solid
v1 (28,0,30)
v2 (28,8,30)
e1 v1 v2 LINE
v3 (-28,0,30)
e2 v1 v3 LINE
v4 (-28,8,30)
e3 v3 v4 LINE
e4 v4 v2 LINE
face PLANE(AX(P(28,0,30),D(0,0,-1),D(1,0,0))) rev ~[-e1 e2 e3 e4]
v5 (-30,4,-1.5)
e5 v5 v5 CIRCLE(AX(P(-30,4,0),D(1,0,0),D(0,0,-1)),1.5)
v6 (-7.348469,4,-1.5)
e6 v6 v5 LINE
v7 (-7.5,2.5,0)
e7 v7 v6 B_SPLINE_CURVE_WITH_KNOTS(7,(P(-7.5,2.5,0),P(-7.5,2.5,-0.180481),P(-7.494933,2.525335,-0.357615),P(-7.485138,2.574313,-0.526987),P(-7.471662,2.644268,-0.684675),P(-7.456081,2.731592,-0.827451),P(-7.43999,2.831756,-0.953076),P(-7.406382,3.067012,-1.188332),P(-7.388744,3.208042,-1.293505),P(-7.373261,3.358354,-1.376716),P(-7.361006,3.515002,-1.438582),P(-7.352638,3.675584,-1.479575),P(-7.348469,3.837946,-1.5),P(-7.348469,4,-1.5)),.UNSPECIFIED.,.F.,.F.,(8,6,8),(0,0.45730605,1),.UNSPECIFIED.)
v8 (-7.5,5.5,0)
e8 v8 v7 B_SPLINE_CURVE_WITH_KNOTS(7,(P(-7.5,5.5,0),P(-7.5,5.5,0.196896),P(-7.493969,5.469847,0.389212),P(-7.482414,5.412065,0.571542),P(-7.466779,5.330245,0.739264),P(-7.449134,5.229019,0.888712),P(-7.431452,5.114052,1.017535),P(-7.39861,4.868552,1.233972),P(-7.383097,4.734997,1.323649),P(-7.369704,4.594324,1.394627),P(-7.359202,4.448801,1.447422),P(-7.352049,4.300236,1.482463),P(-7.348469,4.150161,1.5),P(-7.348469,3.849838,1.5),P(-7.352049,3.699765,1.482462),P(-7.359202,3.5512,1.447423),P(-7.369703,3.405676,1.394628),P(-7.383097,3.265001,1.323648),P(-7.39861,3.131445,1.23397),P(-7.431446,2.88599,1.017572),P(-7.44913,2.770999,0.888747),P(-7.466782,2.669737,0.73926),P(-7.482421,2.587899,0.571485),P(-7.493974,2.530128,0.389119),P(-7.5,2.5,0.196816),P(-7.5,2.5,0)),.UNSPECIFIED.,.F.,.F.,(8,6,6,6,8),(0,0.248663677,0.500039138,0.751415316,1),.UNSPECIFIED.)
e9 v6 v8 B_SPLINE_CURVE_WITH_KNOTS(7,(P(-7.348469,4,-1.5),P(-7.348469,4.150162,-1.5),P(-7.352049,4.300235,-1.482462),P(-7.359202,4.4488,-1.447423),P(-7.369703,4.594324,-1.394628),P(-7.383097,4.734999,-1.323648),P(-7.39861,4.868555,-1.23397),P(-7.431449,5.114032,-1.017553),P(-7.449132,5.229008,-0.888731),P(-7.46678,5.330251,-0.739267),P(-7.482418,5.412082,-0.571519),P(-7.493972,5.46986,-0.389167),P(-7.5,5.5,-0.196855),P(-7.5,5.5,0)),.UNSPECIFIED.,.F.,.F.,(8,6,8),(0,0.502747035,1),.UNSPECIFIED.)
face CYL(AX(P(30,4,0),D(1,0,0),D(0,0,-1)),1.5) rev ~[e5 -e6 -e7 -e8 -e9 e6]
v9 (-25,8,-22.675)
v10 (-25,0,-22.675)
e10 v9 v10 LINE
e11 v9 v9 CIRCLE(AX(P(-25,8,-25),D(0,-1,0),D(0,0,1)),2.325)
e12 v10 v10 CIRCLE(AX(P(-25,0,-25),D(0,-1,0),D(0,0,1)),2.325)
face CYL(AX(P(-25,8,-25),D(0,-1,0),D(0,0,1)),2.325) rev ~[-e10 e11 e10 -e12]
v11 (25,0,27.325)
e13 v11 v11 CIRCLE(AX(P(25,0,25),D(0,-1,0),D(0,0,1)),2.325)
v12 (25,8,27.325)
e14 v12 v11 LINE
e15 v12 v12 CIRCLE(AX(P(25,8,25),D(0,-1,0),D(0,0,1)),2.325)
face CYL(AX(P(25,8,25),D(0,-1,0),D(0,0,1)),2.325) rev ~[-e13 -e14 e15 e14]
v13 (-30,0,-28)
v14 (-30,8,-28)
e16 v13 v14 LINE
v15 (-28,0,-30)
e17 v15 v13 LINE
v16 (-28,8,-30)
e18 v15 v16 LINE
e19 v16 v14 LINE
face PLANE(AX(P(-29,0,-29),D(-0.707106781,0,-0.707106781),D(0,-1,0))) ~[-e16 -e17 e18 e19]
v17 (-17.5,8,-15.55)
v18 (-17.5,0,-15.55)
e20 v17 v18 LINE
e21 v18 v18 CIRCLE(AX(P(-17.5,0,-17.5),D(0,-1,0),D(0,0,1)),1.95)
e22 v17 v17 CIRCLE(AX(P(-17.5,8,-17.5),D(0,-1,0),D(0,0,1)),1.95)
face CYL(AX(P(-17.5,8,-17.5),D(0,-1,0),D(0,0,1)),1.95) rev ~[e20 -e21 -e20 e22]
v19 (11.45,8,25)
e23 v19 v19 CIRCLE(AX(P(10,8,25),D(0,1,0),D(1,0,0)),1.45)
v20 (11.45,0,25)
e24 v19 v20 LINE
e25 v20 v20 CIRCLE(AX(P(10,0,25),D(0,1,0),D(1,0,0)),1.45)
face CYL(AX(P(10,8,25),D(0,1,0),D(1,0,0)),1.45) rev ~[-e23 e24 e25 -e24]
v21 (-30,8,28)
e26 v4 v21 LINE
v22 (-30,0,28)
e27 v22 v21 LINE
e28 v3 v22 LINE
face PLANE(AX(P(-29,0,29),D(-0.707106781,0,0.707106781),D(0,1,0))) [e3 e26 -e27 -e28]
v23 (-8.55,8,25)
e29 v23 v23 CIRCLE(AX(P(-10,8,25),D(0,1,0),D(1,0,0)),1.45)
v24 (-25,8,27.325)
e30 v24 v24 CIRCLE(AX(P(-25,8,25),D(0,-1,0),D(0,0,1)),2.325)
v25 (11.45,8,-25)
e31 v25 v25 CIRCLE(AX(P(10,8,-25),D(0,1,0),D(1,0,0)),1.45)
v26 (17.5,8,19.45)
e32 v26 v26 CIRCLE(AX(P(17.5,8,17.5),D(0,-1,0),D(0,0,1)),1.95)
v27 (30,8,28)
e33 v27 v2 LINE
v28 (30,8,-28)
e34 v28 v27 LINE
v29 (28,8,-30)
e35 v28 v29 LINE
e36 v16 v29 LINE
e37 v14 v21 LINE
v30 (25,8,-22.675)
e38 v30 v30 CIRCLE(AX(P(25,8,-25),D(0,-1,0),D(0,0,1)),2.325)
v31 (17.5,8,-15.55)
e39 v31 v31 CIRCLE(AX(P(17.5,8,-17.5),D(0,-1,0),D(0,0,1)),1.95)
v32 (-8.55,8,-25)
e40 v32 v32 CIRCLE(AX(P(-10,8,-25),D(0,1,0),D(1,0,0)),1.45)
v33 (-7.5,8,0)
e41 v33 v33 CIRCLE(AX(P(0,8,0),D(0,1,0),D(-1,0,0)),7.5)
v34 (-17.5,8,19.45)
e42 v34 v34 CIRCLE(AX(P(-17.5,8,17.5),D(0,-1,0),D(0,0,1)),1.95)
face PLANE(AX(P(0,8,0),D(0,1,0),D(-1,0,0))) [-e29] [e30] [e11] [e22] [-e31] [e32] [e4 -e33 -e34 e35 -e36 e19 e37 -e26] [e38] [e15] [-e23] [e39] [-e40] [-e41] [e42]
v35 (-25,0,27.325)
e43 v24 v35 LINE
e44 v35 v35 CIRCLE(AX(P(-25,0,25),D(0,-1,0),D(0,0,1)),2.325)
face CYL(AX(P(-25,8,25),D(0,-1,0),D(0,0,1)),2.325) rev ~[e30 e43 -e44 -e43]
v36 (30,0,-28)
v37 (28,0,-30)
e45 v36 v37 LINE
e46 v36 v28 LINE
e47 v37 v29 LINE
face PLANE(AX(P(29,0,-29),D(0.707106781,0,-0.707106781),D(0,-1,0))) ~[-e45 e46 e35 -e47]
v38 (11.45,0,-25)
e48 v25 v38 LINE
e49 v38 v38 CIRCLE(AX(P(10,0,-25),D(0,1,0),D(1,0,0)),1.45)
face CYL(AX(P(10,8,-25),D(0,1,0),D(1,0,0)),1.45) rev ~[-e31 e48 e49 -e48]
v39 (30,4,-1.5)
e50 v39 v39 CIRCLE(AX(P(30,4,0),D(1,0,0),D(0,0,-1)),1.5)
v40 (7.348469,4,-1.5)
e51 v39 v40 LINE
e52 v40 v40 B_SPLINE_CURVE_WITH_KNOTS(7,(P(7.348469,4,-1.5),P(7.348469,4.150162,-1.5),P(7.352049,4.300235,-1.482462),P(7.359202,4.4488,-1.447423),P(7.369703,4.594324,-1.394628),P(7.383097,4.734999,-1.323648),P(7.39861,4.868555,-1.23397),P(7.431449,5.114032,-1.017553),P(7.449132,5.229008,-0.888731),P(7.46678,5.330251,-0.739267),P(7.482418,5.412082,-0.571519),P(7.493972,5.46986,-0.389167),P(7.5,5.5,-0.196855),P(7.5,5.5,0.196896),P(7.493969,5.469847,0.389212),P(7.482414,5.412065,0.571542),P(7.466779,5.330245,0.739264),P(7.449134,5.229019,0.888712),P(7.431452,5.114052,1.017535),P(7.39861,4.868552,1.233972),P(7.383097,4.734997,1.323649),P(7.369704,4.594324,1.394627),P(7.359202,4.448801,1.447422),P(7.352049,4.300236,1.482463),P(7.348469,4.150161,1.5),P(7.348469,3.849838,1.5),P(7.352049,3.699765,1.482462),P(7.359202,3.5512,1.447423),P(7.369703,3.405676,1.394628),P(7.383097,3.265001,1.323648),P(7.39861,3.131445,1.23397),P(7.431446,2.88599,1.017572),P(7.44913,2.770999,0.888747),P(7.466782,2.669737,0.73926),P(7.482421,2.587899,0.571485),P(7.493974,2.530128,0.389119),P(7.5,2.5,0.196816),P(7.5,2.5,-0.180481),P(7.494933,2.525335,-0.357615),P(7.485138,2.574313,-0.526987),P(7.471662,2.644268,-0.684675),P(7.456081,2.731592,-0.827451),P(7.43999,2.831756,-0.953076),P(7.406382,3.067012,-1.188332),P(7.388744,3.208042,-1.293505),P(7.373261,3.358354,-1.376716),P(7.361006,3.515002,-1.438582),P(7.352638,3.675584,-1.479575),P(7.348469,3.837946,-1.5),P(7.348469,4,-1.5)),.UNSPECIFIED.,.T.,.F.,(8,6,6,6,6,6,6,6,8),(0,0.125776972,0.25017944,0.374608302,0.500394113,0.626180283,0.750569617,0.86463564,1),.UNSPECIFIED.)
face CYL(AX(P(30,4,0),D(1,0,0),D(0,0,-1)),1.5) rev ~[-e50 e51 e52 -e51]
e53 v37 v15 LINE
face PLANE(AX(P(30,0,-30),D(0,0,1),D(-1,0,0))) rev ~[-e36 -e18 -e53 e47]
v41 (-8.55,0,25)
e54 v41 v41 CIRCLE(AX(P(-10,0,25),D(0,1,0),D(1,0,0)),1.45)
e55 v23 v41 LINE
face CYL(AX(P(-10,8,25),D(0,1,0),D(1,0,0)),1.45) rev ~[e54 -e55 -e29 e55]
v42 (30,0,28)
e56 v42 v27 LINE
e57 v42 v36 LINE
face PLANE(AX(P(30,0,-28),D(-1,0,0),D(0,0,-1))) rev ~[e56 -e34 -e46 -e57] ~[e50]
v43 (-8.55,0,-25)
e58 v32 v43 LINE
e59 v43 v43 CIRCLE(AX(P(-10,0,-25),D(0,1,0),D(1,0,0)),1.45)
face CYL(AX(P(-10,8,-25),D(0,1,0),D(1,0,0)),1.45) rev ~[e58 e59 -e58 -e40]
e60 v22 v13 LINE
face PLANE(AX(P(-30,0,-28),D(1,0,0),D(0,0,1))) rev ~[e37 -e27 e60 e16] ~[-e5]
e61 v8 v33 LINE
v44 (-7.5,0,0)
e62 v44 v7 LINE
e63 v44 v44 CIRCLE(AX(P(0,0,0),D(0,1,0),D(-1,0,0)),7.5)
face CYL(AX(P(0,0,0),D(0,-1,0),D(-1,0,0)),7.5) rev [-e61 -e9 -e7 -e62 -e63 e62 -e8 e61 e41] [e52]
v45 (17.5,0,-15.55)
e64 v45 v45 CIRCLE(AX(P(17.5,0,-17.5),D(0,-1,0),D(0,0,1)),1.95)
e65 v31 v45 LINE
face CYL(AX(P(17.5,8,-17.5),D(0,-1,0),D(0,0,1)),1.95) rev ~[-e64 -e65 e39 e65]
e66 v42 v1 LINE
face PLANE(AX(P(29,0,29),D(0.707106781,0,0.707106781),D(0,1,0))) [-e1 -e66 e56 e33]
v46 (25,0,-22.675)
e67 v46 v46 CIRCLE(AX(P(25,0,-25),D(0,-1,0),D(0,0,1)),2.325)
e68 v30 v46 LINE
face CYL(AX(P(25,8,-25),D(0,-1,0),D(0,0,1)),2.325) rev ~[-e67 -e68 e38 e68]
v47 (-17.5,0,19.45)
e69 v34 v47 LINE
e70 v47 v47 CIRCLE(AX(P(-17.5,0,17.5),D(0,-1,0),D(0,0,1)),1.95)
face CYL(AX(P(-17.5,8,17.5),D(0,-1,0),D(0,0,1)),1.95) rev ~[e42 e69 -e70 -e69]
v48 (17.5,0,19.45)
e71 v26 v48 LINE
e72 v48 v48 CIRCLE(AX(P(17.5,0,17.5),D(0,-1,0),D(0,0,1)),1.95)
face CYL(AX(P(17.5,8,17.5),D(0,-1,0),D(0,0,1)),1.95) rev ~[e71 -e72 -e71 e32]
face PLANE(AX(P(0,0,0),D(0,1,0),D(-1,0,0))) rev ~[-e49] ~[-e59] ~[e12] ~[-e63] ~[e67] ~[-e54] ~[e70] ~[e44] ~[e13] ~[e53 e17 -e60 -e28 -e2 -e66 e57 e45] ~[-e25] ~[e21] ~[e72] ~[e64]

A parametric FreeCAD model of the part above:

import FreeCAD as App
import Part
import Sketcher

V = App.Vector
Q = App.Units.Quantity


def edges_at(feature, points):
    """Names of the edges that pass closest to the given points."""
    edges = feature.Shape.Edges
    near = lambda p: min(range(len(edges)), key=lambda i: edges[i].distToShape(Part.Vertex(*p))[0])
    return sorted({f"Edge{near(p) + 1}" for p in points})

doc = App.newDocument("Part")
params = doc.addObject("Spreadsheet::Sheet", "Params")
for row, (alias, value) in enumerate([
    ("sketch1_diameter", "15 mm"),
    ("sketch1_width", "60 mm"),
    ("pad1_length", "8 mm"),
    ("sketch2_diameter", "3.9 mm"),
    ("hole_diameter", "3.9 mm"),
    ("hole_depth", "10 mm"),
    ("chamfer_size", "2 mm"),
    ("sketch3_diameter", "4.65 mm"),
    ("hole2_diameter", "4.65 mm"),
    ("sketch4_diameter", "3 mm"),
    ("sketch5_diameter", "2.9 mm"),
    ("pocket2_length", "10 mm"),
], start=1):
    params.set(f"A{row}", alias)
    params.set(f"B{row}", "=" + value)
    params.setAlias(f"B{row}", alias)

body = doc.addObject("PartDesign::Body", "Body")

# Sketch on XZ plane
sketch1 = body.newObject("Sketcher::SketchObject", "Sketch")
sketch1.AttachmentSupport = (doc.getObject("XZ_Plane"), [""])
sketch1.MapMode = "FlatFace"
sketch1.addGeometry([
    Part.LineSegment(V(30, -30, 0), V(-30, -30, 0)),  # 0
    Part.LineSegment(V(-30, -30, 0), V(-30, 30, 0)),  # 1
    Part.LineSegment(V(-30, 30, 0), V(30, 30, 0)),  # 2
    Part.LineSegment(V(30, 30, 0), V(30, -30, 0)),  # 3
    Part.Circle(V(0, 0, 0), V(0, 0, 1), 8),  # 4
], False)
sketch1.addConstraint([
    Sketcher.Constraint("Coincident", 0, 2, 1, 1),
    Sketcher.Constraint("Coincident", 1, 2, 2, 1),
    Sketcher.Constraint("Coincident", 2, 2, 3, 1),
    Sketcher.Constraint("Coincident", 3, 2, 0, 1),
    Sketcher.Constraint("Horizontal", 0),
    Sketcher.Constraint("Vertical", 1),
    Sketcher.Constraint("Horizontal", 2),
    Sketcher.Constraint("Vertical", 3),
    Sketcher.Constraint("Coincident", 4, 3, -1, 1),
    Sketcher.Constraint("Symmetric", 0, 2, 2, 2, -1, 1),
    Sketcher.Constraint("Equal", 2, 1),
    Sketcher.Constraint("Diameter", 4, Q("15 mm")),
    Sketcher.Constraint("DistanceX", 0, 2, 0, 1, Q("60 mm")),
])
sketch1.setExpression("Constraints[11]", "Params.sketch1_diameter")
sketch1.setExpression("Constraints[12]", "Params.sketch1_width")
pad1 = body.newObject("PartDesign::Pad", "Pad")
pad1.Profile = sketch1
pad1.setExpression("Length", "Params.pad1_length")
pad1.Reversed = True

# Sketch on XZ plane
sketch2 = body.newObject("Sketcher::SketchObject", "Sketch001")
sketch2.AttachmentSupport = (doc.getObject("XZ_Plane"), [""])
sketch2.MapMode = "FlatFace"
sketch2.AttachmentOffset = App.Placement(V(0, 0, -8), App.Rotation())
sketch2.addGeometry([
    Part.Circle(V(-17.5, 17.5, 0), V(0, 0, 1), 1.9),
    Part.Circle(V(-17.5, -17.5, 0), V(0, 0, 1), 1.9),
    Part.Circle(V(17.5, -17.5, 0), V(0, 0, 1), 1.9),
    Part.Circle(V(17.5, 17.5, 0), V(0, 0, 1), 1.9),
], False)
sketch2.addConstraint([
    Sketcher.Constraint("Equal", 0, 1),
    Sketcher.Constraint("Equal", 1, 2),
    Sketcher.Constraint("Equal", 2, 3),
    Sketcher.Constraint("Symmetric", 0, 3, 2, 3, -1, 1),
    Sketcher.Constraint("Symmetric", 1, 3, 3, 3, -1, 1),
    Sketcher.Constraint("Symmetric", 1, 3, 2, 3, -2),
    Sketcher.Constraint("Diameter", 0, Q("3.9 mm")),
    Sketcher.Constraint("DistanceY", 1, 3, 0, 3, Q("35 mm")),
    Sketcher.Constraint("DistanceX", 1, 3, 2, 3, Q("35 mm")),
])
sketch2.setExpression("Constraints[6]", "Params.sketch2_diameter")
doc.recompute()
hole = body.newObject("PartDesign::Hole", "Hole")
hole.Profile = sketch2
hole.ThreadType = "None"
hole.setExpression("Diameter", "Params.hole_diameter")
hole.DepthType = "Dimension"
hole.setExpression("Depth", "Params.hole_depth")
hole.DrillPoint = "Angled"
hole.DrillPointAngle = 118
hole.Reversed = True
doc.recompute()

chamfer = body.newObject("PartDesign::Chamfer", "Chamfer")
chamfer.Base = (hole, edges_at(hole, [
    (30, 4, 30),
    (30, 4, -30),
    (-30, 4, -30),
    (-30, 4, 30),
]))
chamfer.setExpression("Size", "Params.chamfer_size")

# Sketch on XZ plane
sketch3 = body.newObject("Sketcher::SketchObject", "Sketch002")
sketch3.AttachmentSupport = (doc.getObject("XZ_Plane"), [""])
sketch3.MapMode = "FlatFace"
sketch3.AttachmentOffset = App.Placement(V(0, 0, -8), App.Rotation())
sketch3.addGeometry([
    Part.Circle(V(-25, -25, 0), V(0, 0, 1), 2.3),
    Part.Circle(V(25, -25, 0), V(0, 0, 1), 2.3),
    Part.Circle(V(25, 25, 0), V(0, 0, 1), 2.3),
    Part.Circle(V(-25, 25, 0), V(0, 0, 1), 2.3),
], False)
sketch3.addConstraint([
    Sketcher.Constraint("Equal", 0, 1),
    Sketcher.Constraint("Equal", 1, 2),
    Sketcher.Constraint("Equal", 2, 3),
    Sketcher.Constraint("Symmetric", 0, 3, 2, 3, -1, 1),
    Sketcher.Constraint("Symmetric", 1, 3, 3, 3, -1, 1),
    Sketcher.Constraint("Symmetric", 0, 3, 1, 3, -2),
    Sketcher.Constraint("Diameter", 0, Q("4.65 mm")),
    Sketcher.Constraint("DistanceX", 0, 3, -1, 1, Q("25 mm")),
    Sketcher.Constraint("DistanceY", 0, 3, -1, 1, Q("25 mm")),
])
sketch3.setExpression("Constraints[6]", "Params.sketch3_diameter")
doc.recompute()
hole2 = body.newObject("PartDesign::Hole", "Hole001")
hole2.Profile = sketch3
hole2.ThreadType = "None"
hole2.setExpression("Diameter", "Params.hole2_diameter")
hole2.DepthType = "ThroughAll"
hole2.Reversed = True

# Sketch on YZ plane
sketch4 = body.newObject("Sketcher::SketchObject", "Sketch003")
sketch4.AttachmentSupport = (doc.getObject("YZ_Plane"), [""])
sketch4.MapMode = "FlatFace"
sketch4.AttachmentOffset = App.Placement(V(0, 0, 30), App.Rotation())
sketch4.addGeometry(Part.Circle(V(4, 0, 0), V(0, 0, 1), 1.5), False)
sketch4.addConstraint([
    Sketcher.Constraint("PointOnObject", 0, 3, -1),
    Sketcher.Constraint("Diameter", 0, Q("3 mm")),
    Sketcher.Constraint("DistanceX", -1, 1, 0, 3, Q("4 mm")),
])
sketch4.setExpression("Constraints[1]", "Params.sketch4_diameter")
pocket1 = body.newObject("PartDesign::Pocket", "Pocket")
pocket1.Profile = sketch4
pocket1.Type = "ThroughAll"

# Sketch on XZ plane
sketch5 = body.newObject("Sketcher::SketchObject", "Sketch004")
sketch5.AttachmentSupport = (doc.getObject("XZ_Plane"), [""])
sketch5.MapMode = "FlatFace"
sketch5.AttachmentOffset = App.Placement(V(0, 0, -8), App.Rotation())
sketch5.addGeometry([
    Part.Circle(V(10, 25, 0), V(0, 0, 1), 1.4),
    Part.Circle(V(-10, 25, 0), V(0, 0, 1), 1.4),
    Part.Circle(V(10, -25, 0), V(0, 0, 1), 1.4),
    Part.Circle(V(-10, -25, 0), V(0, 0, 1), 1.4),
], False)
sketch5.addConstraint([
    Sketcher.Constraint("Equal", 0, 1),
    Sketcher.Constraint("Equal", 1, 2),
    Sketcher.Constraint("Equal", 2, 3),
    Sketcher.Constraint("Symmetric", 1, 3, 2, 3, -1, 1),
    Sketcher.Constraint("Symmetric", 0, 3, 3, 3, -1, 1),
    Sketcher.Constraint("Symmetric", 0, 3, 1, 3, -2),
    Sketcher.Constraint("Diameter", 0, Q("2.9 mm")),
    Sketcher.Constraint("DistanceX", -1, 1, 0, 3, Q("10 mm")),
    Sketcher.Constraint("DistanceY", -1, 1, 0, 3, Q("25 mm")),
])
sketch5.setExpression("Constraints[6]", "Params.sketch5_diameter")
pocket2 = body.newObject("PartDesign::Pocket", "Pocket001")
pocket2.Profile = sketch5
pocket2.setExpression("Length", "Params.pocket2_length")
pocket2.Reversed = True

doc.recompute()
